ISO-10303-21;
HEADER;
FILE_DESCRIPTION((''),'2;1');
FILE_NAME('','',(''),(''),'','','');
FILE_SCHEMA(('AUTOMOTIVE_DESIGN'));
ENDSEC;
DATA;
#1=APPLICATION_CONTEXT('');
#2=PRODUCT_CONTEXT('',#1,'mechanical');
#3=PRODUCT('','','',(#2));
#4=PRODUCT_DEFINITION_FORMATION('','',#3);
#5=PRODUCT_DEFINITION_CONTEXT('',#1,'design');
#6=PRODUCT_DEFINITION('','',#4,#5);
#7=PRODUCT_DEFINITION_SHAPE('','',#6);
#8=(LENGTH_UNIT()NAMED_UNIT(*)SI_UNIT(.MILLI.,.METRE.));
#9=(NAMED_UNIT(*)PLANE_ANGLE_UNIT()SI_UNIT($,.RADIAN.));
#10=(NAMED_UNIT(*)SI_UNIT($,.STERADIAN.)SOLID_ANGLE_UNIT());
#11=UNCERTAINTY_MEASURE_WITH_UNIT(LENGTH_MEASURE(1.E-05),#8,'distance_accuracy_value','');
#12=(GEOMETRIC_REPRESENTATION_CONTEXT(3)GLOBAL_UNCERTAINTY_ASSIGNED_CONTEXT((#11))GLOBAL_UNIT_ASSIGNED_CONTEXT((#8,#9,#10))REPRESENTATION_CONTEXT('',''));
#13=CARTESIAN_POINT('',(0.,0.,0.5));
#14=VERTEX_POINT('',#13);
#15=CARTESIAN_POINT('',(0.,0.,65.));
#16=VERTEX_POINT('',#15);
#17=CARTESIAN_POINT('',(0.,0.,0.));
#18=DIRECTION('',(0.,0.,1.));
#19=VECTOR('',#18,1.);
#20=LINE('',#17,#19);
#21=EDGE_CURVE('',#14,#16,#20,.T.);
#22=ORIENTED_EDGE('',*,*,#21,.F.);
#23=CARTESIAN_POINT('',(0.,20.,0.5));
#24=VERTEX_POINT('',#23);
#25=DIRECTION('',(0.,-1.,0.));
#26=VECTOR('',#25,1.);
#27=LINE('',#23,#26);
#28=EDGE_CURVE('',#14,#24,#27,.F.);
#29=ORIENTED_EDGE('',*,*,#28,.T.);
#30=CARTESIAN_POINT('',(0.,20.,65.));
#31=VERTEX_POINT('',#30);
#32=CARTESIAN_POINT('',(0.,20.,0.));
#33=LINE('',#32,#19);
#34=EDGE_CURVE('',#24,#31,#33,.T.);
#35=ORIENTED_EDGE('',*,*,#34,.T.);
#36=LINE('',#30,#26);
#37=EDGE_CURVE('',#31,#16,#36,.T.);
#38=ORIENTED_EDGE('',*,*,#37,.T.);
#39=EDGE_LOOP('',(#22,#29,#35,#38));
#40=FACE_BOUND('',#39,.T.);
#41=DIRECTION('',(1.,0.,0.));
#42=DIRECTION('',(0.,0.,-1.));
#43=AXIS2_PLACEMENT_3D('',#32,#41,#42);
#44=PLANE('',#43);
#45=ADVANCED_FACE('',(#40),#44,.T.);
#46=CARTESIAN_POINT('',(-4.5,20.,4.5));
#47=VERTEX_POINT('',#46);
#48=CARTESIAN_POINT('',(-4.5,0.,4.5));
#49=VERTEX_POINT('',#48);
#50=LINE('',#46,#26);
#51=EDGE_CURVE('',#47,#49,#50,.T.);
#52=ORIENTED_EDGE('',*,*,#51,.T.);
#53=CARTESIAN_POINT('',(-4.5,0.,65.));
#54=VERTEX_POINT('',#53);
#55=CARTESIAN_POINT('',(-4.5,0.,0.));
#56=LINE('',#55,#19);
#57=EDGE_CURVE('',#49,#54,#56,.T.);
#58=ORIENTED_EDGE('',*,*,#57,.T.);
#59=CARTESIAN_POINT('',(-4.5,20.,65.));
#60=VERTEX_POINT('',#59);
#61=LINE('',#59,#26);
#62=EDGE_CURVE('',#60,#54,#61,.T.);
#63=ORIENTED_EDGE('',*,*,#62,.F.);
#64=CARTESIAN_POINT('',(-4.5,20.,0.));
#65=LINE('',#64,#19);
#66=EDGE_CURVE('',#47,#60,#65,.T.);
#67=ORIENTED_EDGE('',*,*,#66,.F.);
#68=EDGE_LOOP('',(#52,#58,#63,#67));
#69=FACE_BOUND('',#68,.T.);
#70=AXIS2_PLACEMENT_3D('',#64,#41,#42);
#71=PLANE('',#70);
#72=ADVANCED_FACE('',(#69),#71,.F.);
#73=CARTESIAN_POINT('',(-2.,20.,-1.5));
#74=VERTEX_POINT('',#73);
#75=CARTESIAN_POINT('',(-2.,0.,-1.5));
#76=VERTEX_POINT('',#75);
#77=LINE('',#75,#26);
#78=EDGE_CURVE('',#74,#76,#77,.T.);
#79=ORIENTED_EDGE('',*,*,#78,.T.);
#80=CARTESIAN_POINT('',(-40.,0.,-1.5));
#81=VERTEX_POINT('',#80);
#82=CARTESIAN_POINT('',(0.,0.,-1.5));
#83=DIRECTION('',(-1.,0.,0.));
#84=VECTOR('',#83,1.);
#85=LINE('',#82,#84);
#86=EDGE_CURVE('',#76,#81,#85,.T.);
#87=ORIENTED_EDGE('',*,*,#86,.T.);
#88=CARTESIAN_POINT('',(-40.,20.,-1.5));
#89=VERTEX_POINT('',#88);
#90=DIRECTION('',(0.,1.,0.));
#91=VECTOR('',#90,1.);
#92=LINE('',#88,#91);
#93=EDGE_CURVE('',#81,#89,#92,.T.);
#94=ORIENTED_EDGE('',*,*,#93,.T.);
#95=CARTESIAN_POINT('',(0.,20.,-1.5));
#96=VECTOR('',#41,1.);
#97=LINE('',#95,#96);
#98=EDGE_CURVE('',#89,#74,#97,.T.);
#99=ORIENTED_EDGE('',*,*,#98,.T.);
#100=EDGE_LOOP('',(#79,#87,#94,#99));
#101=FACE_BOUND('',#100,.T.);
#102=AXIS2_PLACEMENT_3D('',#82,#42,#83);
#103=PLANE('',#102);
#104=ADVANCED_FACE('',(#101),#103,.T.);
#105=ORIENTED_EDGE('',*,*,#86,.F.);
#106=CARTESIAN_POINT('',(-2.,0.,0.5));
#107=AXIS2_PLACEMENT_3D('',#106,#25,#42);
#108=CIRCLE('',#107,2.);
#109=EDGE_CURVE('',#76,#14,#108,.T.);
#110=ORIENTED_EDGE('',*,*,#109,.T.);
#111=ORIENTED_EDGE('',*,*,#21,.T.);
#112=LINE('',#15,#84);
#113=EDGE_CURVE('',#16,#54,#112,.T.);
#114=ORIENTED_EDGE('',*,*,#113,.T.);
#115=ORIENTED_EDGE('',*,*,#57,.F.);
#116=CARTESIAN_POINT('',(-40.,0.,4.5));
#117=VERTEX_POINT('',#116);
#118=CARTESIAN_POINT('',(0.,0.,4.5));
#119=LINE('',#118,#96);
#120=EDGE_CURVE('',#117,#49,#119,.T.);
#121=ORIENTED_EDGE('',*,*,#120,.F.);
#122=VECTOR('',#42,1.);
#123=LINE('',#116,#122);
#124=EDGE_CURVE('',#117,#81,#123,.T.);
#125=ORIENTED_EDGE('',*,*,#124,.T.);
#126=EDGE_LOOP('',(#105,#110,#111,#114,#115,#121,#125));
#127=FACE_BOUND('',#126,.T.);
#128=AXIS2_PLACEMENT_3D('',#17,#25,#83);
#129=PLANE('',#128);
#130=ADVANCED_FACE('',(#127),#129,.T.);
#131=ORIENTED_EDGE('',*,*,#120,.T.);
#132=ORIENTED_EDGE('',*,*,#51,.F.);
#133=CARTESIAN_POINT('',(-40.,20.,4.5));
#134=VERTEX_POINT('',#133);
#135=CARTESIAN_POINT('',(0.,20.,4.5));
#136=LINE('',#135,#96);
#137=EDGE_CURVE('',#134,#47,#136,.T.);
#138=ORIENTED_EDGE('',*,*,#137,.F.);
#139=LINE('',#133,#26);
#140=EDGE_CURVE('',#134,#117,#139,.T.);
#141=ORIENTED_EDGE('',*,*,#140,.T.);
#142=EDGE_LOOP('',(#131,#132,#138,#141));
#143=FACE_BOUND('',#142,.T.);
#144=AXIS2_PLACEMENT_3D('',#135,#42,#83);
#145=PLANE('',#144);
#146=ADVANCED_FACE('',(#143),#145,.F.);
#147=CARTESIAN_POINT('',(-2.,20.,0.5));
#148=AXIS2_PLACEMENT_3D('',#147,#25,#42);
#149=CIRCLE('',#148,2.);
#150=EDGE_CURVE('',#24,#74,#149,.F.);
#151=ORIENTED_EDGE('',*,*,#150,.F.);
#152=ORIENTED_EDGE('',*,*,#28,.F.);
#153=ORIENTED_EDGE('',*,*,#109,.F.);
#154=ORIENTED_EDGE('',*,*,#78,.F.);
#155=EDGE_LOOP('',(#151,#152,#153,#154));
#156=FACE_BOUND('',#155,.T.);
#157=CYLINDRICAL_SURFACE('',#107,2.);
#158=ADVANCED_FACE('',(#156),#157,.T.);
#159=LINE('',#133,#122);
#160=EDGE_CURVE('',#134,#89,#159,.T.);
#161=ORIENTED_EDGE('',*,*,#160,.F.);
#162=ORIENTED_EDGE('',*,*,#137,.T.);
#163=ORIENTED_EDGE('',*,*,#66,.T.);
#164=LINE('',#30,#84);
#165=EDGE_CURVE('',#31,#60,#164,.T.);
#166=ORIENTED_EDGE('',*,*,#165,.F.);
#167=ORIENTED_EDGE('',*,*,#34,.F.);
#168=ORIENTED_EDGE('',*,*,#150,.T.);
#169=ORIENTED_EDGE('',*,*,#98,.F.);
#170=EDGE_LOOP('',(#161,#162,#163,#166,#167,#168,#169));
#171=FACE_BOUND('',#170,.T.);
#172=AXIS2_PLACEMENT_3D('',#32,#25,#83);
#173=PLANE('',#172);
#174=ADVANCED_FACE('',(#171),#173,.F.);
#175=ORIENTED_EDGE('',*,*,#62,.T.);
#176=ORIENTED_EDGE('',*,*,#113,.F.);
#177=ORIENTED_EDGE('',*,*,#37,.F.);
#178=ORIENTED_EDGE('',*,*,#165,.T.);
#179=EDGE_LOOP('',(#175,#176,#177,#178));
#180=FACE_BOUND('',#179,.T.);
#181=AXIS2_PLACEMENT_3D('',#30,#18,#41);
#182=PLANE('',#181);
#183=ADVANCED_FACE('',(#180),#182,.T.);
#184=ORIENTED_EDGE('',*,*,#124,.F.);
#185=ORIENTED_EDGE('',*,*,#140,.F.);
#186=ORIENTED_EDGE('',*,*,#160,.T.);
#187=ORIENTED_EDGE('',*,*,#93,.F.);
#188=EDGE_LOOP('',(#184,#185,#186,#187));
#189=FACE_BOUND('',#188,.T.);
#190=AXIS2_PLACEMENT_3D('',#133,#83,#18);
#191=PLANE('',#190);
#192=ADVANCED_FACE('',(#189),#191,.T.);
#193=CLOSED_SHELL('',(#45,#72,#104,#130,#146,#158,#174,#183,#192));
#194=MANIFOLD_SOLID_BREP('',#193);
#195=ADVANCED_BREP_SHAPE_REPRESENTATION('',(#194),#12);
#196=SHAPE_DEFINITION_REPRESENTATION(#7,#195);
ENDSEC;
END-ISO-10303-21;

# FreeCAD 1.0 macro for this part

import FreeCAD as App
import Part
import Sketcher
from FreeCAD import Vector


def edges_at(feature, points):
    """Names of the edges that pass closest to the given points."""
    edges = feature.Shape.Edges
    near = lambda p: min(range(len(edges)), key=lambda i: edges[i].distToShape(Part.Vertex(*p))[0])
    return sorted({f"Edge{near(p) + 1}" for p in points})

doc = App.newDocument("Part")
body = doc.addObject("PartDesign::Body", "Body")

sketch1 = body.newObject("Sketcher::SketchObject", "Sketch")
sketch1.AttachmentSupport = (doc.getObject("XZ_Plane"), [""])
sketch1.MapMode = "FlatFace"
sketch1.addGeometry([
    Part.LineSegment(Vector(0, 65, 0), Vector(0, 0, 0)),
    Part.LineSegment(Vector(0, 0, 0), Vector(-40, 0, 0)),
    Part.LineSegment(Vector(-40, 0, 0), Vector(-40, 4.5, 0)),
    Part.LineSegment(Vector(-40, 4.5, 0), Vector(-4.5, 4.5, 0)),
    Part.LineSegment(Vector(-4.5, 4.5, 0), Vector(-4.5, 65, 0)),
    Part.LineSegment(Vector(-4.5, 65, 0), Vector(0, 65, 0)),
], False)
sketch1.addConstraint([
    Sketcher.Constraint("Coincident", 0, 2, 1, 1),
    Sketcher.Constraint("Coincident", 1, 2, 2, 1),
    Sketcher.Constraint("Coincident", 2, 2, 3, 1),
    Sketcher.Constraint("Coincident", 3, 2, 4, 1),
    Sketcher.Constraint("Coincident", 4, 2, 5, 1),
    Sketcher.Constraint("Coincident", 5, 2, 0, 1),
    Sketcher.Constraint("Vertical", 0),
    Sketcher.Constraint("Horizontal", 1),
    Sketcher.Constraint("Vertical", 2),
    Sketcher.Constraint("Horizontal", 3),
    Sketcher.Constraint("Vertical", 4),
    Sketcher.Constraint("Horizontal", 5),
    Sketcher.Constraint("Coincident", 0, 2, -1, 1),
    Sketcher.Constraint("Equal", 5, 2),
    Sketcher.Constraint("DistanceX", 1, 2, 1, 1, 40.0),
    Sketcher.Constraint("DistanceY", 0, 2, 0, 1, 65.0),
    Sketcher.Constraint("DistanceX", 3, 1, 3, 2, 35.5),
])
pad1 = body.newObject("PartDesign::Pad", "Pad")
pad1.Profile = sketch1
pad1.Length = 20
pad1.Reversed = True

sketch2 = body.newObject("Sketcher::SketchObject", "Sketch001")
sketch2.AttachmentSupport = (doc.getObject("XY_Plane"), [""])
sketch2.MapMode = "FlatFace"
sketch2.addGeometry([
    Part.LineSegment(Vector(0, 20, 0), Vector(0, 0, 0)),
    Part.LineSegment(Vector(0, 0, 0), Vector(-40, 0, 0)),
    Part.LineSegment(Vector(-40, 0, 0), Vector(-40, 20, 0)),
    Part.LineSegment(Vector(-40, 20, 0), Vector(0, 20, 0)),
], False)
sketch2.addConstraint([
    Sketcher.Constraint("Coincident", 0, 2, 1, 1),
    Sketcher.Constraint("Coincident", 1, 2, 2, 1),
    Sketcher.Constraint("Coincident", 2, 2, 3, 1),
    Sketcher.Constraint("Coincident", 3, 2, 0, 1),
    Sketcher.Constraint("Vertical", 0),
    Sketcher.Constraint("Horizontal", 1),
    Sketcher.Constraint("Vertical", 2),
    Sketcher.Constraint("Horizontal", 3),
    Sketcher.Constraint("Coincident", 0, 2, -1, 1),
    Sketcher.Constraint("DistanceX", 1, 2, 1, 1, 40.0),
    Sketcher.Constraint("DistanceY", 0, 2, 0, 1, 20.0),
])
pad2 = body.newObject("PartDesign::Pad", "Pad001")
pad2.Profile = sketch2
pad2.Length = 1.5
pad2.Reversed = True
doc.recompute()

fillet = body.newObject("PartDesign::Fillet", "Fillet")
fillet.Base = (pad2, edges_at(pad2, [(0, 10, -1.5)]))
fillet.Radius = 2

doc.recompute()
